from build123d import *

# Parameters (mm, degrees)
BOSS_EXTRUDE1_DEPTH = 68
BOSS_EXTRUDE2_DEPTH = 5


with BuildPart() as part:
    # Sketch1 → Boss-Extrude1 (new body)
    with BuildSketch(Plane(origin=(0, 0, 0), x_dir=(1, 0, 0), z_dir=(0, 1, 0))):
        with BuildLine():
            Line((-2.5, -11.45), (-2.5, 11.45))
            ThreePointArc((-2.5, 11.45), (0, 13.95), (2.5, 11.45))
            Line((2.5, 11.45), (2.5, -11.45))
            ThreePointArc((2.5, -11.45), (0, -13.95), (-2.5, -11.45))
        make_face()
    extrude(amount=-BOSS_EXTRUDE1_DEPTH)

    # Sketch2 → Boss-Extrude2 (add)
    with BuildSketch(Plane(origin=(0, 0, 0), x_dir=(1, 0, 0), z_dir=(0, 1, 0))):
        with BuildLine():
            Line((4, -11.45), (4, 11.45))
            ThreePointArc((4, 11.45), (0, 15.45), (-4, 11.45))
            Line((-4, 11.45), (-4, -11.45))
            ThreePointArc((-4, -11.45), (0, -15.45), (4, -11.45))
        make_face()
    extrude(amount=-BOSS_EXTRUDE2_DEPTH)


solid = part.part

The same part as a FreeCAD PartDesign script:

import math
import FreeCAD as App
import Part
import Sketcher

V = App.Vector

doc = App.newDocument("Part")
body = doc.addObject("PartDesign::Body", "Body")

# Sketch on XZ plane
sketch1 = body.newObject("Sketcher::SketchObject", "Sketch")
sketch1.AttachmentSupport = (doc.getObject("XZ_Plane"), [""])
sketch1.MapMode = "FlatFace"
sketch1.addGeometry([
    Part.LineSegment(V(-2.5, -11.4, 0), V(-2.5, 11.4, 0)),
    Part.ArcOfCircle(Part.Circle(V(0, 11.4, 0), V(0, 0, 1), 2.5), math.radians(0), math.radians(180)),
    Part.LineSegment(V(2.5, 11.4, 0), V(2.5, -11.4, 0)),
    Part.ArcOfCircle(Part.Circle(V(0, -11.4, 0), V(0, 0, 1), 2.5), math.radians(180), math.radians(360)),
], False)
sketch1.addConstraint([
    Sketcher.Constraint("Tangent", 0, 2, 1, 2),
    Sketcher.Constraint("Tangent", 1, 1, 2, 1),
    Sketcher.Constraint("Tangent", 2, 2, 3, 2),
    Sketcher.Constraint("Tangent", 3, 1, 0, 1),
    Sketcher.Constraint("Vertical", 0),
    Sketcher.Constraint("Vertical", 2),
    Sketcher.Constraint("Symmetric", 1, 3, 3, 3, -1, 1),
    Sketcher.Constraint("Radius", 1, 2.5),
    Sketcher.Constraint("DistanceY", 0, 1, 0, 2, 22.9),
])
pad1 = body.newObject("PartDesign::Pad", "Pad")
pad1.Profile = sketch1
pad1.Length = 68

# Sketch on XZ plane
sketch2 = body.newObject("Sketcher::SketchObject", "Sketch001")
sketch2.AttachmentSupport = (doc.getObject("XZ_Plane"), [""])
sketch2.MapMode = "FlatFace"
sketch2.addGeometry([
    Part.LineSegment(V(4, 11.4, 0), V(4, -11.4, 0)),
    Part.ArcOfCircle(Part.Circle(V(0, -11.4, 0), V(0, 0, 1), 4), math.radians(180), math.radians(360)),
    Part.LineSegment(V(-4, -11.4, 0), V(-4, 11.4, 0)),
    Part.ArcOfCircle(Part.Circle(V(0, 11.4, 0), V(0, 0, 1), 4), math.radians(0), math.radians(180)),
], False)
sketch2.addConstraint([
    Sketcher.Constraint("Tangent", 0, 2, 1, 2),
    Sketcher.Constraint("Tangent", 1, 1, 2, 1),
    Sketcher.Constraint("Tangent", 2, 2, 3, 2),
    Sketcher.Constraint("Tangent", 3, 1, 0, 1),
    Sketcher.Constraint("Vertical", 0),
    Sketcher.Constraint("Vertical", 2),
    Sketcher.Constraint("Symmetric", 1, 3, 3, 3, -1, 1),
    Sketcher.Constraint("Radius", 1, 4.0),
    Sketcher.Constraint("DistanceY", 0, 2, 0, 1, 22.9),
])
pad2 = body.newObject("PartDesign::Pad", "Pad001")
pad2.Profile = sketch2
pad2.Length = 5

doc.recompute()
